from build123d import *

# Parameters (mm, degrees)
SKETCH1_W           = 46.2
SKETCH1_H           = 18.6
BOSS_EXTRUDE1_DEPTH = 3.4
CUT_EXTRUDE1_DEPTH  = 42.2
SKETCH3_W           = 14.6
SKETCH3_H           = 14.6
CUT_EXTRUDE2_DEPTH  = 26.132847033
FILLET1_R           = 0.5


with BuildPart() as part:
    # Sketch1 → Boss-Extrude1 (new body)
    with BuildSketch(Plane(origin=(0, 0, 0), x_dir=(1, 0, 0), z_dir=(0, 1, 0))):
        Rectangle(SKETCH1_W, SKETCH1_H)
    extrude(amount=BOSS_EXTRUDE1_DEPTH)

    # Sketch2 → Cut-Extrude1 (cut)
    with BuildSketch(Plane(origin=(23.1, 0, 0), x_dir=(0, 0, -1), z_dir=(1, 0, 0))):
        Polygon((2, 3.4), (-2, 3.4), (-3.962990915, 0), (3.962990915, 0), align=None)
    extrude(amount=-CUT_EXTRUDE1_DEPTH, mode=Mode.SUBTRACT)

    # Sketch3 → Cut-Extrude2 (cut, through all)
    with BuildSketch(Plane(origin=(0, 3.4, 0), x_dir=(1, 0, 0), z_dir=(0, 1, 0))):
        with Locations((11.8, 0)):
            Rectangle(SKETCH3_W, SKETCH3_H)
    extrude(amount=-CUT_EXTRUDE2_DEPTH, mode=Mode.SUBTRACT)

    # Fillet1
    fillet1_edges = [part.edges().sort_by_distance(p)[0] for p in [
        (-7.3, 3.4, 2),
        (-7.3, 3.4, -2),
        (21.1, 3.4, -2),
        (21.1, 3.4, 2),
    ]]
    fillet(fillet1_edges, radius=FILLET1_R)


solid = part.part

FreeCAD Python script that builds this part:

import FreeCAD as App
import Part
import Sketcher
from FreeCAD import Vector
Q = App.Units.Quantity


def edges_at(feature, points):
    """Names of the edges that pass closest to the given points."""
    edges = feature.Shape.Edges
    near = lambda p: min(range(len(edges)), key=lambda i: edges[i].distToShape(Part.Vertex(*p))[0])
    return sorted({f"Edge{near(p) + 1}" for p in points})


def add_polygon(sketch, points):
    """Adds a closed chain of lines whose ends are joined by coincident constraints."""
    first, n = sketch.GeometryCount, len(points)
    for a, b in zip(points, points[1:] + points[:1]):
        sketch.addGeometry(Part.LineSegment(App.Vector(*a, 0), App.Vector(*b, 0)), False)
    for i in range(n):
        sketch.addConstraint(Sketcher.Constraint("Coincident", first + i, 2, first + (i + 1) % n, 1))

doc = App.newDocument("Part")
body = doc.addObject("PartDesign::Body", "Body")

# Sketch on XZ plane
sketch1 = body.newObject("Sketcher::SketchObject", "Sketch")
sketch1.AttachmentSupport = (doc.getObject("XZ_Plane"), [""])
sketch1.MapMode = "FlatFace"
add_polygon(sketch1, [(-23.1, -9.3), (-23.1, 9.3), (23.1, 9.3), (23.1, -9.3)])  # lines 0-3
sketch1.addConstraint([
    Sketcher.Constraint("Vertical", 0),
    Sketcher.Constraint("Horizontal", 1),
    Sketcher.Constraint("Vertical", 2),
    Sketcher.Constraint("Horizontal", 3),
    Sketcher.Constraint("Symmetric", 0, 2, 2, 2, -1, 1),
    Sketcher.Constraint("DistanceX", 1, 1, 1, 2, Q("46.2 mm")),
    Sketcher.Constraint("DistanceY", 0, 1, 0, 2, Q("18.6 mm")),
])
pad1 = body.newObject("PartDesign::Pad", "Pad")
pad1.Profile = sketch1
pad1.Length = 3.4
pad1.Reversed = True

# Sketch on YZ plane
sketch2 = body.newObject("Sketcher::SketchObject", "Sketch001")
sketch2.AttachmentSupport = (doc.getObject("YZ_Plane"), [""])
sketch2.MapMode = "FlatFace"
sketch2.AttachmentOffset = App.Placement(Vector(0, 0, 23.1), App.Rotation())
add_polygon(sketch2, [(3.4, -2), (3.4, 2), (0, 3.962991), (0, -3.962991)])  # lines 0-3
sketch2.addConstraint([
    Sketcher.Constraint("Vertical", 0),
    Sketcher.Constraint("Vertical", 2),
    Sketcher.Constraint("Symmetric", 1, 2, 2, 2, -1, 1),
    Sketcher.Constraint("Equal", 1, 3),
    Sketcher.Constraint("DistanceY", 0, 1, 0, 2, Q("4 mm")),
    Sketcher.Constraint("Angle", 1, Q("150 deg")),
    Sketcher.Constraint("DistanceX", -1, 1, 0, 2, Q("3.4 mm")),
])
pocket1 = body.newObject("PartDesign::Pocket", "Pocket")
pocket1.Profile = sketch2
pocket1.Length = 42.2

# Sketch on XZ plane
sketch3 = body.newObject("Sketcher::SketchObject", "Sketch002")
sketch3.AttachmentSupport = (doc.getObject("XZ_Plane"), [""])
sketch3.MapMode = "FlatFace"
sketch3.AttachmentOffset = App.Placement(Vector(0, 0, -3.4), App.Rotation())
add_polygon(sketch3, [(4.5, -7.3), (4.5, 7.3), (19.1, 7.3), (19.1, -7.3)])  # lines 0-3
sketch3.addConstraint([
    Sketcher.Constraint("Vertical", 0),
    Sketcher.Constraint("Horizontal", 1),
    Sketcher.Constraint("Vertical", 2),
    Sketcher.Constraint("Horizontal", 3),
    Sketcher.Constraint("Equal", 3, 0),
    Sketcher.Constraint("DistanceX", 1, 1, 1, 2, Q("14.6 mm")),
    Sketcher.Constraint("DistanceX", -1, 1, 0, 2, Q("4.5 mm")),
    Sketcher.Constraint("DistanceY", -1, 1, 0, 2, Q("7.3 mm")),
])
pocket2 = body.newObject("PartDesign::Pocket", "Pocket001")
pocket2.Profile = sketch3
pocket2.Type = "ThroughAll"
pocket2.Reversed = True
doc.recompute()

fillet = body.newObject("PartDesign::Fillet", "Fillet")
fillet.Base = (pocket2, edges_at(pocket2, [
    (-7.3, 3.4, 2),
    (-7.3, 3.4, -2),
    (21.1, 3.4, -2),
    (21.1, 3.4, 2),
]))
fillet.Radius = 0.5

doc.recompute()
